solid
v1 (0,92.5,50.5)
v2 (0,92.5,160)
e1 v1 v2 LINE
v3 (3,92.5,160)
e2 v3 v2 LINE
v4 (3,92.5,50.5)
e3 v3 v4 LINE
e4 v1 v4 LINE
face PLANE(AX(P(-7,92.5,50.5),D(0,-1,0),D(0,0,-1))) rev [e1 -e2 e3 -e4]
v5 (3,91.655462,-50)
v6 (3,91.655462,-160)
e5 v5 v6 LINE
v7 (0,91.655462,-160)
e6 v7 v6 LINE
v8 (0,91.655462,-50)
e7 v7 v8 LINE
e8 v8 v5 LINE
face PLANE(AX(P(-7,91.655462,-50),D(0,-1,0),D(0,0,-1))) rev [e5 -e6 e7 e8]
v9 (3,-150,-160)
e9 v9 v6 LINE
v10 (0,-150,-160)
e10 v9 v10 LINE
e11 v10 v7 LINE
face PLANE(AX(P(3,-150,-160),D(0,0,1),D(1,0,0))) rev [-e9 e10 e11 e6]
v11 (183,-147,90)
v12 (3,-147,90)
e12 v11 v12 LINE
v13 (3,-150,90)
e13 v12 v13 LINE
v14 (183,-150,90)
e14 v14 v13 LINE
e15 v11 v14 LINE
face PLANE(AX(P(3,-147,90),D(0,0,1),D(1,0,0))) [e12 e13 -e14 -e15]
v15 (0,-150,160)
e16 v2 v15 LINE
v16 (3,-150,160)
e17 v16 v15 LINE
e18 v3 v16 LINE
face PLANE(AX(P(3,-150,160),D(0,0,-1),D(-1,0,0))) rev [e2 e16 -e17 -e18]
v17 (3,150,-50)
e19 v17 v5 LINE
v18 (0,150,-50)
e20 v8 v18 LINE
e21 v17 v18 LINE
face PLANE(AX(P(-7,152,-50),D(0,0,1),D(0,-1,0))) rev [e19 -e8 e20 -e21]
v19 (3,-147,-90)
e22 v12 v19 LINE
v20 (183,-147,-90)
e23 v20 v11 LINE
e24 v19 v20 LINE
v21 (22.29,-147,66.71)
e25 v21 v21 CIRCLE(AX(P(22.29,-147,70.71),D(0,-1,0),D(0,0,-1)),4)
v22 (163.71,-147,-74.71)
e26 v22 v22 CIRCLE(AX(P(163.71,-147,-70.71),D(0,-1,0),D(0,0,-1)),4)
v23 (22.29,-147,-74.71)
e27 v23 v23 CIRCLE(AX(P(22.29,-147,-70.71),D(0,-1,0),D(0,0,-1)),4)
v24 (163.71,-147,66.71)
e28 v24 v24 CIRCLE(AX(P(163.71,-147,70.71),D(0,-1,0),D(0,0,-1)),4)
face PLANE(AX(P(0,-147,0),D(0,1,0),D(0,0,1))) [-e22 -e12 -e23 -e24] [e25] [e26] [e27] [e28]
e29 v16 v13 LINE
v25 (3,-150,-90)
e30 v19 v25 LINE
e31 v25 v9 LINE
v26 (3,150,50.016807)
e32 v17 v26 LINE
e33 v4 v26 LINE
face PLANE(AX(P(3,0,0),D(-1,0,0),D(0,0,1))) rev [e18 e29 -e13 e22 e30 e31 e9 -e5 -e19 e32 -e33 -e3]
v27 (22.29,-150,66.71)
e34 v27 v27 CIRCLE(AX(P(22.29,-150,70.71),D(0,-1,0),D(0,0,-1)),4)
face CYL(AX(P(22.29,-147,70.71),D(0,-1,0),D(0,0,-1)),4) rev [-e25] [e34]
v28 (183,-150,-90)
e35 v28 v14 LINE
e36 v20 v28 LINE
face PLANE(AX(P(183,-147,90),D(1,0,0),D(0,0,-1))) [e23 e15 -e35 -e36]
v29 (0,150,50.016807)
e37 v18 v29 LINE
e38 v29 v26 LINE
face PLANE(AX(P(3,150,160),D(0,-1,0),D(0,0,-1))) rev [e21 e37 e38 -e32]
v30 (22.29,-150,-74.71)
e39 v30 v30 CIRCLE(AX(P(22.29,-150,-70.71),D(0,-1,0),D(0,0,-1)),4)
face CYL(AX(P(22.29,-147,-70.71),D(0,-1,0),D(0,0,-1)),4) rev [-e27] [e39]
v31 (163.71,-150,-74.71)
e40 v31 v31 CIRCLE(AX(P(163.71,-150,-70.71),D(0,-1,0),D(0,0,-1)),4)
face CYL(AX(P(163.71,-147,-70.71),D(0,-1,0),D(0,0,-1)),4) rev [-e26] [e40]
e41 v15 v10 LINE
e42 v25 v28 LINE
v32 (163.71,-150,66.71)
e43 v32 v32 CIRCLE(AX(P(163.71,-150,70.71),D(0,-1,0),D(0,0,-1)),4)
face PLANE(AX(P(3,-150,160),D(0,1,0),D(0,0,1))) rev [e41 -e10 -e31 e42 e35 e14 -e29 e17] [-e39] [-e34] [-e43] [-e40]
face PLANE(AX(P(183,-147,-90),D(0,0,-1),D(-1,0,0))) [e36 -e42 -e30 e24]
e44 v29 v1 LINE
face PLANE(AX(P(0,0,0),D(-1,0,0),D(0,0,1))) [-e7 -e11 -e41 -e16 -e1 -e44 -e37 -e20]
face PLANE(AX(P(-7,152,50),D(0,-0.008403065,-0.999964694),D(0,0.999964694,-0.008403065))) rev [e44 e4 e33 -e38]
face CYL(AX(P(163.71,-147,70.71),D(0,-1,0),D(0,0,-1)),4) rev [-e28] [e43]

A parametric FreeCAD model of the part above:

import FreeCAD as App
import Part
import Sketcher

V = App.Vector


def add_polygon(sketch, points):
    """Adds a closed chain of lines whose ends are joined by coincident constraints."""
    first, n = sketch.GeometryCount, len(points)
    for a, b in zip(points, points[1:] + points[:1]):
        sketch.addGeometry(Part.LineSegment(App.Vector(*a, 0), App.Vector(*b, 0)), False)
    for i in range(n):
        sketch.addConstraint(Sketcher.Constraint("Coincident", first + i, 2, first + (i + 1) % n, 1))

doc = App.newDocument("Part")
params = doc.addObject("Spreadsheet::Sheet", "Params")
for row, (alias, value) in enumerate([
    ("sketch1_width", "300 mm"),
    ("sketch1_height", "320 mm"),
    ("pad1_length", "3 mm"),
    ("sketch2_diameter", "8 mm"),
    ("sketch2_width", "180 mm"),
    ("pad2_length", "3 mm"),
    ("pocket1_length", "10 mm"),
], start=1):
    params.set(f"A{row}", alias)
    params.set(f"B{row}", "=" + value)
    params.setAlias(f"B{row}", alias)

body = doc.addObject("PartDesign::Body", "Body")

# Sketch on YZ plane
sketch1 = body.newObject("Sketcher::SketchObject", "Sketch")
sketch1.AttachmentSupport = (doc.getObject("YZ_Plane"), [""])
sketch1.MapMode = "FlatFace"
add_polygon(sketch1, [(150, 160), (-150, 160), (-150, -160), (150, -160)])  # lines 0-3
sketch1.addConstraint([
    Sketcher.Constraint("Horizontal", 0),
    Sketcher.Constraint("Vertical", 1),
    Sketcher.Constraint("Horizontal", 2),
    Sketcher.Constraint("Vertical", 3),
    Sketcher.Constraint("Symmetric", 0, 2, 2, 2, -1, 1),
    Sketcher.Constraint("DistanceX", 0, 2, 0, 1, 300.0),
    Sketcher.Constraint("DistanceY", 1, 2, 1, 1, 320.0),
])
sketch1.setExpression("Constraints[9]", "Params.sketch1_width")
sketch1.setExpression("Constraints[10]", "Params.sketch1_height")
pad1 = body.newObject("PartDesign::Pad", "Pad")
pad1.Profile = sketch1
pad1.setExpression("Length", "Params.pad1_length")

# Sketch on XZ plane
sketch2 = body.newObject("Sketcher::SketchObject", "Sketch001")
sketch2.AttachmentSupport = (doc.getObject("XZ_Plane"), [""])
sketch2.MapMode = "FlatFace"
sketch2.AttachmentOffset = App.Placement(V(0, 0, 150), App.Rotation())
add_polygon(sketch2, [(3, 90), (3, -90), (183, -90), (183, 90)])  # lines 0-3
sketch2.addGeometry(Part.Circle(V(22.3, -70.7, 0), V(0, 0, 1), 4), False)  # 4
sketch2.addGeometry(Part.Circle(V(163.7, -70.7, 0), V(0, 0, 1), 4), False)  # 5
sketch2.addGeometry(Part.Circle(V(22.3, 70.7, 0), V(0, 0, 1), 4), False)  # 6
sketch2.addGeometry(Part.Circle(V(163.7, 70.7, 0), V(0, 0, 1), 4), False)  # 7
sketch2.addConstraint([
    Sketcher.Constraint("Vertical", 0),
    Sketcher.Constraint("Horizontal", 1),
    Sketcher.Constraint("Vertical", 2),
    Sketcher.Constraint("Horizontal", 3),
    Sketcher.Constraint("Equal", 4, 5),
    Sketcher.Constraint("Equal", 5, 6),
    Sketcher.Constraint("Equal", 6, 7),
    Sketcher.Constraint("Symmetric", 4, 3, 6, 3, -1),
    Sketcher.Constraint("Symmetric", 5, 3, 7, 3, -1),
    Sketcher.Constraint("Horizontal", 4, 3, 5, 3),
    Sketcher.Constraint("Equal", 3, 0),
    Sketcher.Constraint("Diameter", 4, 8.0),
    Sketcher.Constraint("DistanceX", 1, 1, 1, 2, 180.0),
    Sketcher.Constraint("DistanceX", -1, 1, 0, 2, 3.0),
    Sketcher.Constraint("DistanceY", 0, 2, -1, 1, 90.0),
    Sketcher.Constraint("DistanceX", -1, 1, 4, 3, 22.29),
    Sketcher.Constraint("DistanceY", 4, 3, -1, 1, 70.71),
    Sketcher.Constraint("DistanceX", -1, 1, 5, 3, 163.71),
])
sketch2.setExpression("Constraints[15]", "Params.sketch2_diameter")
sketch2.setExpression("Constraints[16]", "Params.sketch2_width")
pad2 = body.newObject("PartDesign::Pad", "Pad001")
pad2.Profile = sketch2
pad2.setExpression("Length", "Params.pad2_length")
pad2.Reversed = True

# Sketch on YZ plane
sketch3 = body.newObject("Sketcher::SketchObject", "Sketch002")
sketch3.AttachmentSupport = (doc.getObject("YZ_Plane"), [""])
sketch3.MapMode = "FlatFace"
sketch3.AttachmentOffset = App.Placement(V(0, 0, 3), App.Rotation())
add_polygon(sketch3, [(92, 50), (152, 50), (159, 150), (154, 175), (92, 175)])  # lines 0-4
add_polygon(sketch3, [(162, -186), (152, -50), (92, -50), (92, -186)])  # lines 5-8
sketch3.addConstraint([
    Sketcher.Constraint("Horizontal", 3),
    Sketcher.Constraint("Vertical", 4),
    Sketcher.Constraint("Horizontal", 6),
    Sketcher.Constraint("Vertical", 7),
    Sketcher.Constraint("Horizontal", 8),
    Sketcher.Constraint("Symmetric", 0, 2, 5, 2, -1),
    Sketcher.Constraint("DistanceX", -1, 1, 0, 2, 152.0),
    Sketcher.Constraint("DistanceY", -1, 1, 0, 2, 50.0),
    Sketcher.Constraint("DistanceY", -1, 1, 1, 2, 150.0),
    Sketcher.Constraint("DistanceX", -1, 1, 3, 2, 92.5),
    Sketcher.Constraint("DistanceY", -1, 1, 4, 2, 50.5),
    Sketcher.Constraint("DistanceX", 3, 2, 3, 1, 61.349759),
    Sketcher.Constraint("DistanceX", 8, 1, 8, 2, 70.551441),
    Sketcher.Constraint("DistanceY", 7, 2, 7, 1, 136.01679),
    Sketcher.Constraint("Distance", 1, 100.23775),
    Sketcher.Constraint("DistanceX", 6, 2, 6, 1, 60.344538),
    Sketcher.Constraint("DistanceY", 4, 2, 4, 1, 124.495323),
])
pocket1 = body.newObject("PartDesign::Pocket", "Pocket")
pocket1.Profile = sketch3
pocket1.setExpression("Length", "Params.pocket1_length")

doc.recompute()
